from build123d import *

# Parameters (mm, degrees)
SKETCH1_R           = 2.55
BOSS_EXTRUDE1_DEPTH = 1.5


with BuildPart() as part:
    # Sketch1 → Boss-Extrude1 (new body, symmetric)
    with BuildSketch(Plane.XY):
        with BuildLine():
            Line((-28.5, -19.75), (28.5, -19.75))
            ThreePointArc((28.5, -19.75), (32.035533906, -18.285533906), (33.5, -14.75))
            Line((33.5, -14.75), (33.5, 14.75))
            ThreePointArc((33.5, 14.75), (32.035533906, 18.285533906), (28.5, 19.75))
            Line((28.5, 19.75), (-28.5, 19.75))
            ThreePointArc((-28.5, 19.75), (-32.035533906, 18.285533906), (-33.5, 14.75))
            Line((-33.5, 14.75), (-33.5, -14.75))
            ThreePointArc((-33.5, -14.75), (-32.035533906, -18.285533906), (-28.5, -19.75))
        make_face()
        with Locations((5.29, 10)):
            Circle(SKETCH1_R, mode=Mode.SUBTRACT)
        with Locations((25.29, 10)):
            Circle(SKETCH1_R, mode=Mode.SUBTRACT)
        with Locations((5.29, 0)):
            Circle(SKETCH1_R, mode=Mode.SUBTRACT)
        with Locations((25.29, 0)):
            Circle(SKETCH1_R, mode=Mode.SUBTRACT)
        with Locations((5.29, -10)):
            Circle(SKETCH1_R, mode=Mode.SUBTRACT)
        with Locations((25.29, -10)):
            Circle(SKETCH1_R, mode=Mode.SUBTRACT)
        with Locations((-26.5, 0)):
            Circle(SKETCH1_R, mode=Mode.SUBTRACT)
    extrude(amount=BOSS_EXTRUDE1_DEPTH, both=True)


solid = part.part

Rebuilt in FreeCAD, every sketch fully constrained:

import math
import FreeCAD as App
import Part
import Sketcher

doc = App.newDocument("Part")
body = doc.addObject("PartDesign::Body", "Body")

sketch1 = doc.addObject("Sketcher::SketchObject", "Sketch")
body.addObject(sketch1)
sketch1.AttachmentSupport = (doc.XY_Plane, [""])
sketch1.MapMode = "FlatFace"
sketch1.addGeometry([
    Part.LineSegment(App.Vector(-28.5, -19.75, 0), App.Vector(28.5, -19.75, 0)),
    Part.ArcOfCircle(Part.Circle(App.Vector(28.5, -14.75, 0), App.Vector(0, 0, 1), 5), math.radians(-90), math.radians(0)),
    Part.LineSegment(App.Vector(33.5, -14.75, 0), App.Vector(33.5, 14.75, 0)),
    Part.ArcOfCircle(Part.Circle(App.Vector(28.5, 14.75, 0), App.Vector(0, 0, 1), 5), math.radians(0), math.radians(90)),
    Part.LineSegment(App.Vector(28.5, 19.75, 0), App.Vector(-28.5, 19.75, 0)),
    Part.ArcOfCircle(Part.Circle(App.Vector(-28.5, 14.75, 0), App.Vector(0, 0, 1), 5), math.radians(90), math.radians(180)),
    Part.LineSegment(App.Vector(-33.5, 14.75, 0), App.Vector(-33.5, -14.75, 0)),
    Part.ArcOfCircle(Part.Circle(App.Vector(-28.5, -14.75, 0), App.Vector(0, 0, 1), 5), math.radians(180), math.radians(270)),
    Part.Circle(App.Vector(5.29, -10, 0), App.Vector(0, 0, 1), 2.55),
    Part.Circle(App.Vector(25.29, -10, 0), App.Vector(0, 0, 1), 2.55),
    Part.Circle(App.Vector(-26.5, 0, 0), App.Vector(0, 0, 1), 2.55),
    Part.Circle(App.Vector(5.29, 0, 0), App.Vector(0, 0, 1), 2.55),
    Part.Circle(App.Vector(25.29, 0, 0), App.Vector(0, 0, 1), 2.55),
    Part.Circle(App.Vector(5.29, 10, 0), App.Vector(0, 0, 1), 2.55),
    Part.Circle(App.Vector(25.29, 10, 0), App.Vector(0, 0, 1), 2.55),
], False)
sketch1.addConstraint([
    Sketcher.Constraint("Tangent", 0, 2, 1, 1),
    Sketcher.Constraint("Tangent", 1, 2, 2, 1),
    Sketcher.Constraint("Tangent", 2, 2, 3, 1),
    Sketcher.Constraint("Tangent", 3, 2, 4, 1),
    Sketcher.Constraint("Tangent", 4, 2, 5, 1),
    Sketcher.Constraint("Tangent", 5, 2, 6, 1),
    Sketcher.Constraint("Tangent", 6, 2, 7, 1),
    Sketcher.Constraint("Tangent", 7, 2, 0, 1),
    Sketcher.Constraint("Horizontal", 0),
    Sketcher.Constraint("Vertical", 2),
    Sketcher.Constraint("Horizontal", 4),
    Sketcher.Constraint("Vertical", 6),
    Sketcher.Constraint("Equal", 1, 3),
    Sketcher.Constraint("Equal", 3, 5),
    Sketcher.Constraint("Equal", 5, 7),
    Sketcher.Constraint("Equal", 8, 9),
    Sketcher.Constraint("Equal", 9, 10),
    Sketcher.Constraint("Equal", 10, 11),
    Sketcher.Constraint("Equal", 11, 12),
    Sketcher.Constraint("Equal", 12, 13),
    Sketcher.Constraint("Equal", 13, 14),
    Sketcher.Constraint("Symmetric", 1, 3, 5, 3, -1, 1),
    Sketcher.Constraint("Symmetric", 8, 3, 13, 3, -1),
    Sketcher.Constraint("Symmetric", 9, 3, 14, 3, -1),
    Sketcher.Constraint("PointOnObject", 10, 3, -1),
    Sketcher.Constraint("PointOnObject", 11, 3, -1),
    Sketcher.Constraint("PointOnObject", 12, 3, -1),
    Sketcher.Constraint("Horizontal", 8, 3, 9, 3),
    Sketcher.Constraint("Vertical", 8, 3, 11, 3),
    Sketcher.Constraint("Vertical", 9, 3, 12, 3),
    Sketcher.Constraint("Radius", 1, 5.0),
    Sketcher.Constraint("Diameter", 8, 5.1),
    Sketcher.Constraint("DistanceX", 0, 1, 0, 2, 57.0),
    Sketcher.Constraint("DistanceY", 2, 1, 2, 2, 29.5),
    Sketcher.Constraint("DistanceY", 8, 3, -1, 1, 10.0),
    Sketcher.Constraint("DistanceX", 8, 3, 9, 3, 20.0),
    Sketcher.Constraint("DistanceX", 5, 3, 10, 3, 2.0),
    Sketcher.Constraint("DistanceX", -1, 1, 8, 3, 5.29),
])
pad1 = doc.addObject("PartDesign::Pad", "Pad")
body.addObject(pad1)
pad1.Profile = sketch1
pad1.Length = 3
pad1.Midplane = True

doc.recompute()
